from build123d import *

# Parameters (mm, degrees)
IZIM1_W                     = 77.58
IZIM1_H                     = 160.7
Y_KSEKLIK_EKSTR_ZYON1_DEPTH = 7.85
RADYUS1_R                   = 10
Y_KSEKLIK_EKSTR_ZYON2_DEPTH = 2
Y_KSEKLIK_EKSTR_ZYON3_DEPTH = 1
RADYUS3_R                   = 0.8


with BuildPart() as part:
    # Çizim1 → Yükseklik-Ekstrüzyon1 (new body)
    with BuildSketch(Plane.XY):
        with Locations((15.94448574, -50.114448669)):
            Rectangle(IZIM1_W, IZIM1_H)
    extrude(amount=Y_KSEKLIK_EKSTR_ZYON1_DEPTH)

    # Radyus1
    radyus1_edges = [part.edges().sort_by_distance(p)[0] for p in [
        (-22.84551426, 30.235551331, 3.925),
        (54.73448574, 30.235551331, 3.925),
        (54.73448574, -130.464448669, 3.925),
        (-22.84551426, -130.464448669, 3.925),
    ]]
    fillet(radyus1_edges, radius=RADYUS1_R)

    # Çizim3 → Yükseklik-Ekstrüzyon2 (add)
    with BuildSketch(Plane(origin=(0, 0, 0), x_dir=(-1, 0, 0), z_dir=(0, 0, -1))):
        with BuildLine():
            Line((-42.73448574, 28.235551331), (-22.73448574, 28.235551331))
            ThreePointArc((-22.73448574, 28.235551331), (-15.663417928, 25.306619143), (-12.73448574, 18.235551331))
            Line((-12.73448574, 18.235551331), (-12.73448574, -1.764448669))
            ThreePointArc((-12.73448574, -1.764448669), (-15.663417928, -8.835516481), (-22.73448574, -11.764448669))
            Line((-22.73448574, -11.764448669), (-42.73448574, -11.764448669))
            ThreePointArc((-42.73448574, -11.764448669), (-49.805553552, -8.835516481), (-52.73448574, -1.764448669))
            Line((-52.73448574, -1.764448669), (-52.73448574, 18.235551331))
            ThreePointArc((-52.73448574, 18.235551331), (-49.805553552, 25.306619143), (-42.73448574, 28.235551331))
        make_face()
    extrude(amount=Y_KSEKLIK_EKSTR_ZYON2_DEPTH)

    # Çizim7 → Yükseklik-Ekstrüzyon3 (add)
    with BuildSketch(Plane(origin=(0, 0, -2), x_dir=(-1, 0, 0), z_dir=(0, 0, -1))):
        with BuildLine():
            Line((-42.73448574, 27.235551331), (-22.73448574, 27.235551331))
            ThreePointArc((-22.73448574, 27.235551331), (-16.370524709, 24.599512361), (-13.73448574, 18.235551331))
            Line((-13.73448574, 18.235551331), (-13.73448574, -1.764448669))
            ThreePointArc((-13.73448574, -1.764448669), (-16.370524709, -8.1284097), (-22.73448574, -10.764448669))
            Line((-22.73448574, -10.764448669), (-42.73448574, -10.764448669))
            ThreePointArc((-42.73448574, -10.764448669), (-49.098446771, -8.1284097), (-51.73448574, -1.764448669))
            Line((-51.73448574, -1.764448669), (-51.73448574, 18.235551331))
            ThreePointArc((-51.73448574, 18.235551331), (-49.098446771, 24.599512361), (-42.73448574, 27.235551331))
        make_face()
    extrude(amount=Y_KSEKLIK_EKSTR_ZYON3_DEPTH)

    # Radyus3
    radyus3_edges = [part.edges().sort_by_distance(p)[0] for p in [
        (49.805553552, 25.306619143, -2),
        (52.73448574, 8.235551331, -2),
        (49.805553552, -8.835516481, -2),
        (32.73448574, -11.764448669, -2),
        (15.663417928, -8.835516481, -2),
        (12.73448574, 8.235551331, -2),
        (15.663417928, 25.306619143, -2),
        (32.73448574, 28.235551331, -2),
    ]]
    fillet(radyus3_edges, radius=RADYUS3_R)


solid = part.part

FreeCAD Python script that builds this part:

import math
import FreeCAD as App
import Part
import Sketcher

V = App.Vector


def edges_at(feature, points):
    """Names of the edges that pass closest to the given points."""
    edges = feature.Shape.Edges
    near = lambda p: min(range(len(edges)), key=lambda i: edges[i].distToShape(Part.Vertex(*p))[0])
    return sorted({f"Edge{near(p) + 1}" for p in points})

doc = App.newDocument("Part")
body = doc.addObject("PartDesign::Body", "Body")

# Sketch on XY plane
sketch1 = doc.addObject("Sketcher::SketchObject", "Sketch")
body.addObject(sketch1)
sketch1.AttachmentSupport = (doc.XY_Plane, [""])
sketch1.MapMode = "FlatFace"
sketch1.addGeometry([
    Part.LineSegment(V(-22.845514, 30.235551, 0), V(-22.845514, -130.464449, 0)),
    Part.LineSegment(V(-22.845514, -130.464449, 0), V(54.734486, -130.464449, 0)),
    Part.LineSegment(V(54.734486, -130.464449, 0), V(54.734486, 30.235551, 0)),
    Part.LineSegment(V(54.734486, 30.235551, 0), V(-22.845514, 30.235551, 0)),
], False)
sketch1.addConstraint([
    Sketcher.Constraint("Coincident", 0, 2, 1, 1),
    Sketcher.Constraint("Coincident", 1, 2, 2, 1),
    Sketcher.Constraint("Coincident", 2, 2, 3, 1),
    Sketcher.Constraint("Coincident", 3, 2, 0, 1),
    Sketcher.Constraint("Vertical", 0),
    Sketcher.Constraint("Horizontal", 1),
    Sketcher.Constraint("Vertical", 2),
    Sketcher.Constraint("Horizontal", 3),
    Sketcher.Constraint("DistanceY", 0, 2, 0, 1, 160.7),
    Sketcher.Constraint("DistanceX", 1, 1, 1, 2, 77.58),
    Sketcher.Constraint("DistanceY", 0, 2, -1, 1, 130.464449),
    Sketcher.Constraint("DistanceX", 0, 2, -1, 1, 22.845514),
])
pad1 = doc.addObject("PartDesign::Pad", "Pad")
body.addObject(pad1)
pad1.Profile = sketch1
pad1.Length = 7.85
doc.recompute()

fillet = doc.addObject("PartDesign::Fillet", "Fillet")
body.addObject(fillet)
fillet.Base = (pad1, edges_at(pad1, [
    (-22.846, 30.236, 3.925),
    (54.734, 30.236, 3.925),
    (54.734, -130.464, 3.925),
    (-22.846, -130.464, 3.925),
]))
fillet.Radius = 10

# Sketch on XY plane
sketch2 = doc.addObject("Sketcher::SketchObject", "Sketch001")
body.addObject(sketch2)
sketch2.AttachmentSupport = (doc.XY_Plane, [""])
sketch2.MapMode = "FlatFace"
sketch2.addGeometry([
    Part.LineSegment(V(22.734486, 28.235551, 0), V(42.734486, 28.235551, 0)),  # 0
    Part.ArcOfCircle(Part.Circle(V(42.734486, 18.235551, 0), V(0, 0, 1), 10), math.radians(0), math.radians(90)),  # 1
    Part.LineSegment(V(52.734486, 18.235551, 0), V(52.734486, -1.764449, 0)),  # 2
    Part.ArcOfCircle(Part.Circle(V(42.734486, -1.764449, 0), V(0, 0, 1), 10), math.radians(-90), math.radians(0)),  # 3
    Part.LineSegment(V(42.734486, -11.764449, 0), V(22.734486, -11.764449, 0)),  # 4
    Part.ArcOfCircle(Part.Circle(V(22.734486, -1.764449, 0), V(0, 0, 1), 10), math.radians(180), math.radians(270)),  # 5
    Part.LineSegment(V(12.734486, -1.764449, 0), V(12.734486, 18.235551, 0)),  # 6
    Part.ArcOfCircle(Part.Circle(V(22.734486, 18.235551, 0), V(0, 0, 1), 10), math.radians(90), math.radians(180)),  # 7
], False)
sketch2.addConstraint([
    Sketcher.Constraint("Tangent", 0, 2, 1, 2),
    Sketcher.Constraint("Tangent", 1, 1, 2, 1),
    Sketcher.Constraint("Tangent", 2, 2, 3, 2),
    Sketcher.Constraint("Tangent", 3, 1, 4, 1),
    Sketcher.Constraint("Tangent", 4, 2, 5, 2),
    Sketcher.Constraint("Tangent", 5, 1, 6, 1),
    Sketcher.Constraint("Tangent", 6, 2, 7, 2),
    Sketcher.Constraint("Tangent", 7, 1, 0, 1),
    Sketcher.Constraint("Horizontal", 0),
    Sketcher.Constraint("Vertical", 2),
    Sketcher.Constraint("Horizontal", 4),
    Sketcher.Constraint("Vertical", 6),
    Sketcher.Constraint("Equal", 1, 3),
    Sketcher.Constraint("Equal", 3, 5),
    Sketcher.Constraint("Equal", 5, 7),
    Sketcher.Constraint("Equal", 4, 2),
    Sketcher.Constraint("Radius", 1, 10.0),
    Sketcher.Constraint("DistanceX", 0, 1, 0, 2, 20.0),
    Sketcher.Constraint("DistanceY", -1, 1, 1, 3, 18.235551),
    Sketcher.Constraint("DistanceX", -1, 1, 1, 3, 42.734486),
])
pad2 = doc.addObject("PartDesign::Pad", "Pad001")
body.addObject(pad2)
pad2.Profile = sketch2
pad2.Length = 2
pad2.Reversed = True

# Sketch on XY plane
sketch3 = doc.addObject("Sketcher::SketchObject", "Sketch002")
body.addObject(sketch3)
sketch3.AttachmentSupport = (doc.XY_Plane, [""])
sketch3.MapMode = "FlatFace"
sketch3.AttachmentOffset = App.Placement(V(0, 0, -2), App.Rotation())
sketch3.addGeometry([
    Part.LineSegment(V(22.734486, 27.235551, 0), V(42.734486, 27.235551, 0)),  # 0
    Part.ArcOfCircle(Part.Circle(V(42.734486, 18.235551, 0), V(0, 0, 1), 9), math.radians(0), math.radians(90)),  # 1
    Part.LineSegment(V(51.734486, 18.235551, 0), V(51.734486, -1.764449, 0)),  # 2
    Part.ArcOfCircle(Part.Circle(V(42.734486, -1.764449, 0), V(0, 0, 1), 9), math.radians(-90), math.radians(0)),  # 3
    Part.LineSegment(V(42.734486, -10.764449, 0), V(22.734486, -10.764449, 0)),  # 4
    Part.ArcOfCircle(Part.Circle(V(22.734486, -1.764449, 0), V(0, 0, 1), 9), math.radians(180), math.radians(270)),  # 5
    Part.LineSegment(V(13.734486, -1.764449, 0), V(13.734486, 18.235551, 0)),  # 6
    Part.ArcOfCircle(Part.Circle(V(22.734486, 18.235551, 0), V(0, 0, 1), 9), math.radians(90), math.radians(180)),  # 7
], False)
sketch3.addConstraint([
    Sketcher.Constraint("Tangent", 0, 2, 1, 2),
    Sketcher.Constraint("Tangent", 1, 1, 2, 1),
    Sketcher.Constraint("Tangent", 2, 2, 3, 2),
    Sketcher.Constraint("Tangent", 3, 1, 4, 1),
    Sketcher.Constraint("Tangent", 4, 2, 5, 2),
    Sketcher.Constraint("Tangent", 5, 1, 6, 1),
    Sketcher.Constraint("Tangent", 6, 2, 7, 2),
    Sketcher.Constraint("Tangent", 7, 1, 0, 1),
    Sketcher.Constraint("Horizontal", 0),
    Sketcher.Constraint("Vertical", 2),
    Sketcher.Constraint("Horizontal", 4),
    Sketcher.Constraint("Vertical", 6),
    Sketcher.Constraint("Equal", 1, 3),
    Sketcher.Constraint("Equal", 3, 5),
    Sketcher.Constraint("Equal", 5, 7),
    Sketcher.Constraint("Equal", 4, 2),
    Sketcher.Constraint("Radius", 1, 9.0),
    Sketcher.Constraint("DistanceX", 0, 1, 0, 2, 20.0),
    Sketcher.Constraint("DistanceY", -1, 1, 1, 3, 18.235551),
    Sketcher.Constraint("DistanceX", -1, 1, 1, 3, 42.734486),
])
pad3 = doc.addObject("PartDesign::Pad", "Pad002")
body.addObject(pad3)
pad3.Profile = sketch3
pad3.Length = 1
pad3.Reversed = True
doc.recompute()

fillet2 = doc.addObject("PartDesign::Fillet", "Fillet001")
body.addObject(fillet2)
fillet2.Base = (pad3, edges_at(pad3, [
    (49.806, 25.307, -2),
    (52.734, 8.236, -2),
    (49.806, -8.836, -2),
    (32.734, -11.764, -2),
    (15.663, -8.836, -2),
    (12.734, 8.236, -2),
    (15.663, 25.307, -2),
    (32.734, 28.236, -2),
]))
fillet2.Radius = 0.8

doc.recompute()
